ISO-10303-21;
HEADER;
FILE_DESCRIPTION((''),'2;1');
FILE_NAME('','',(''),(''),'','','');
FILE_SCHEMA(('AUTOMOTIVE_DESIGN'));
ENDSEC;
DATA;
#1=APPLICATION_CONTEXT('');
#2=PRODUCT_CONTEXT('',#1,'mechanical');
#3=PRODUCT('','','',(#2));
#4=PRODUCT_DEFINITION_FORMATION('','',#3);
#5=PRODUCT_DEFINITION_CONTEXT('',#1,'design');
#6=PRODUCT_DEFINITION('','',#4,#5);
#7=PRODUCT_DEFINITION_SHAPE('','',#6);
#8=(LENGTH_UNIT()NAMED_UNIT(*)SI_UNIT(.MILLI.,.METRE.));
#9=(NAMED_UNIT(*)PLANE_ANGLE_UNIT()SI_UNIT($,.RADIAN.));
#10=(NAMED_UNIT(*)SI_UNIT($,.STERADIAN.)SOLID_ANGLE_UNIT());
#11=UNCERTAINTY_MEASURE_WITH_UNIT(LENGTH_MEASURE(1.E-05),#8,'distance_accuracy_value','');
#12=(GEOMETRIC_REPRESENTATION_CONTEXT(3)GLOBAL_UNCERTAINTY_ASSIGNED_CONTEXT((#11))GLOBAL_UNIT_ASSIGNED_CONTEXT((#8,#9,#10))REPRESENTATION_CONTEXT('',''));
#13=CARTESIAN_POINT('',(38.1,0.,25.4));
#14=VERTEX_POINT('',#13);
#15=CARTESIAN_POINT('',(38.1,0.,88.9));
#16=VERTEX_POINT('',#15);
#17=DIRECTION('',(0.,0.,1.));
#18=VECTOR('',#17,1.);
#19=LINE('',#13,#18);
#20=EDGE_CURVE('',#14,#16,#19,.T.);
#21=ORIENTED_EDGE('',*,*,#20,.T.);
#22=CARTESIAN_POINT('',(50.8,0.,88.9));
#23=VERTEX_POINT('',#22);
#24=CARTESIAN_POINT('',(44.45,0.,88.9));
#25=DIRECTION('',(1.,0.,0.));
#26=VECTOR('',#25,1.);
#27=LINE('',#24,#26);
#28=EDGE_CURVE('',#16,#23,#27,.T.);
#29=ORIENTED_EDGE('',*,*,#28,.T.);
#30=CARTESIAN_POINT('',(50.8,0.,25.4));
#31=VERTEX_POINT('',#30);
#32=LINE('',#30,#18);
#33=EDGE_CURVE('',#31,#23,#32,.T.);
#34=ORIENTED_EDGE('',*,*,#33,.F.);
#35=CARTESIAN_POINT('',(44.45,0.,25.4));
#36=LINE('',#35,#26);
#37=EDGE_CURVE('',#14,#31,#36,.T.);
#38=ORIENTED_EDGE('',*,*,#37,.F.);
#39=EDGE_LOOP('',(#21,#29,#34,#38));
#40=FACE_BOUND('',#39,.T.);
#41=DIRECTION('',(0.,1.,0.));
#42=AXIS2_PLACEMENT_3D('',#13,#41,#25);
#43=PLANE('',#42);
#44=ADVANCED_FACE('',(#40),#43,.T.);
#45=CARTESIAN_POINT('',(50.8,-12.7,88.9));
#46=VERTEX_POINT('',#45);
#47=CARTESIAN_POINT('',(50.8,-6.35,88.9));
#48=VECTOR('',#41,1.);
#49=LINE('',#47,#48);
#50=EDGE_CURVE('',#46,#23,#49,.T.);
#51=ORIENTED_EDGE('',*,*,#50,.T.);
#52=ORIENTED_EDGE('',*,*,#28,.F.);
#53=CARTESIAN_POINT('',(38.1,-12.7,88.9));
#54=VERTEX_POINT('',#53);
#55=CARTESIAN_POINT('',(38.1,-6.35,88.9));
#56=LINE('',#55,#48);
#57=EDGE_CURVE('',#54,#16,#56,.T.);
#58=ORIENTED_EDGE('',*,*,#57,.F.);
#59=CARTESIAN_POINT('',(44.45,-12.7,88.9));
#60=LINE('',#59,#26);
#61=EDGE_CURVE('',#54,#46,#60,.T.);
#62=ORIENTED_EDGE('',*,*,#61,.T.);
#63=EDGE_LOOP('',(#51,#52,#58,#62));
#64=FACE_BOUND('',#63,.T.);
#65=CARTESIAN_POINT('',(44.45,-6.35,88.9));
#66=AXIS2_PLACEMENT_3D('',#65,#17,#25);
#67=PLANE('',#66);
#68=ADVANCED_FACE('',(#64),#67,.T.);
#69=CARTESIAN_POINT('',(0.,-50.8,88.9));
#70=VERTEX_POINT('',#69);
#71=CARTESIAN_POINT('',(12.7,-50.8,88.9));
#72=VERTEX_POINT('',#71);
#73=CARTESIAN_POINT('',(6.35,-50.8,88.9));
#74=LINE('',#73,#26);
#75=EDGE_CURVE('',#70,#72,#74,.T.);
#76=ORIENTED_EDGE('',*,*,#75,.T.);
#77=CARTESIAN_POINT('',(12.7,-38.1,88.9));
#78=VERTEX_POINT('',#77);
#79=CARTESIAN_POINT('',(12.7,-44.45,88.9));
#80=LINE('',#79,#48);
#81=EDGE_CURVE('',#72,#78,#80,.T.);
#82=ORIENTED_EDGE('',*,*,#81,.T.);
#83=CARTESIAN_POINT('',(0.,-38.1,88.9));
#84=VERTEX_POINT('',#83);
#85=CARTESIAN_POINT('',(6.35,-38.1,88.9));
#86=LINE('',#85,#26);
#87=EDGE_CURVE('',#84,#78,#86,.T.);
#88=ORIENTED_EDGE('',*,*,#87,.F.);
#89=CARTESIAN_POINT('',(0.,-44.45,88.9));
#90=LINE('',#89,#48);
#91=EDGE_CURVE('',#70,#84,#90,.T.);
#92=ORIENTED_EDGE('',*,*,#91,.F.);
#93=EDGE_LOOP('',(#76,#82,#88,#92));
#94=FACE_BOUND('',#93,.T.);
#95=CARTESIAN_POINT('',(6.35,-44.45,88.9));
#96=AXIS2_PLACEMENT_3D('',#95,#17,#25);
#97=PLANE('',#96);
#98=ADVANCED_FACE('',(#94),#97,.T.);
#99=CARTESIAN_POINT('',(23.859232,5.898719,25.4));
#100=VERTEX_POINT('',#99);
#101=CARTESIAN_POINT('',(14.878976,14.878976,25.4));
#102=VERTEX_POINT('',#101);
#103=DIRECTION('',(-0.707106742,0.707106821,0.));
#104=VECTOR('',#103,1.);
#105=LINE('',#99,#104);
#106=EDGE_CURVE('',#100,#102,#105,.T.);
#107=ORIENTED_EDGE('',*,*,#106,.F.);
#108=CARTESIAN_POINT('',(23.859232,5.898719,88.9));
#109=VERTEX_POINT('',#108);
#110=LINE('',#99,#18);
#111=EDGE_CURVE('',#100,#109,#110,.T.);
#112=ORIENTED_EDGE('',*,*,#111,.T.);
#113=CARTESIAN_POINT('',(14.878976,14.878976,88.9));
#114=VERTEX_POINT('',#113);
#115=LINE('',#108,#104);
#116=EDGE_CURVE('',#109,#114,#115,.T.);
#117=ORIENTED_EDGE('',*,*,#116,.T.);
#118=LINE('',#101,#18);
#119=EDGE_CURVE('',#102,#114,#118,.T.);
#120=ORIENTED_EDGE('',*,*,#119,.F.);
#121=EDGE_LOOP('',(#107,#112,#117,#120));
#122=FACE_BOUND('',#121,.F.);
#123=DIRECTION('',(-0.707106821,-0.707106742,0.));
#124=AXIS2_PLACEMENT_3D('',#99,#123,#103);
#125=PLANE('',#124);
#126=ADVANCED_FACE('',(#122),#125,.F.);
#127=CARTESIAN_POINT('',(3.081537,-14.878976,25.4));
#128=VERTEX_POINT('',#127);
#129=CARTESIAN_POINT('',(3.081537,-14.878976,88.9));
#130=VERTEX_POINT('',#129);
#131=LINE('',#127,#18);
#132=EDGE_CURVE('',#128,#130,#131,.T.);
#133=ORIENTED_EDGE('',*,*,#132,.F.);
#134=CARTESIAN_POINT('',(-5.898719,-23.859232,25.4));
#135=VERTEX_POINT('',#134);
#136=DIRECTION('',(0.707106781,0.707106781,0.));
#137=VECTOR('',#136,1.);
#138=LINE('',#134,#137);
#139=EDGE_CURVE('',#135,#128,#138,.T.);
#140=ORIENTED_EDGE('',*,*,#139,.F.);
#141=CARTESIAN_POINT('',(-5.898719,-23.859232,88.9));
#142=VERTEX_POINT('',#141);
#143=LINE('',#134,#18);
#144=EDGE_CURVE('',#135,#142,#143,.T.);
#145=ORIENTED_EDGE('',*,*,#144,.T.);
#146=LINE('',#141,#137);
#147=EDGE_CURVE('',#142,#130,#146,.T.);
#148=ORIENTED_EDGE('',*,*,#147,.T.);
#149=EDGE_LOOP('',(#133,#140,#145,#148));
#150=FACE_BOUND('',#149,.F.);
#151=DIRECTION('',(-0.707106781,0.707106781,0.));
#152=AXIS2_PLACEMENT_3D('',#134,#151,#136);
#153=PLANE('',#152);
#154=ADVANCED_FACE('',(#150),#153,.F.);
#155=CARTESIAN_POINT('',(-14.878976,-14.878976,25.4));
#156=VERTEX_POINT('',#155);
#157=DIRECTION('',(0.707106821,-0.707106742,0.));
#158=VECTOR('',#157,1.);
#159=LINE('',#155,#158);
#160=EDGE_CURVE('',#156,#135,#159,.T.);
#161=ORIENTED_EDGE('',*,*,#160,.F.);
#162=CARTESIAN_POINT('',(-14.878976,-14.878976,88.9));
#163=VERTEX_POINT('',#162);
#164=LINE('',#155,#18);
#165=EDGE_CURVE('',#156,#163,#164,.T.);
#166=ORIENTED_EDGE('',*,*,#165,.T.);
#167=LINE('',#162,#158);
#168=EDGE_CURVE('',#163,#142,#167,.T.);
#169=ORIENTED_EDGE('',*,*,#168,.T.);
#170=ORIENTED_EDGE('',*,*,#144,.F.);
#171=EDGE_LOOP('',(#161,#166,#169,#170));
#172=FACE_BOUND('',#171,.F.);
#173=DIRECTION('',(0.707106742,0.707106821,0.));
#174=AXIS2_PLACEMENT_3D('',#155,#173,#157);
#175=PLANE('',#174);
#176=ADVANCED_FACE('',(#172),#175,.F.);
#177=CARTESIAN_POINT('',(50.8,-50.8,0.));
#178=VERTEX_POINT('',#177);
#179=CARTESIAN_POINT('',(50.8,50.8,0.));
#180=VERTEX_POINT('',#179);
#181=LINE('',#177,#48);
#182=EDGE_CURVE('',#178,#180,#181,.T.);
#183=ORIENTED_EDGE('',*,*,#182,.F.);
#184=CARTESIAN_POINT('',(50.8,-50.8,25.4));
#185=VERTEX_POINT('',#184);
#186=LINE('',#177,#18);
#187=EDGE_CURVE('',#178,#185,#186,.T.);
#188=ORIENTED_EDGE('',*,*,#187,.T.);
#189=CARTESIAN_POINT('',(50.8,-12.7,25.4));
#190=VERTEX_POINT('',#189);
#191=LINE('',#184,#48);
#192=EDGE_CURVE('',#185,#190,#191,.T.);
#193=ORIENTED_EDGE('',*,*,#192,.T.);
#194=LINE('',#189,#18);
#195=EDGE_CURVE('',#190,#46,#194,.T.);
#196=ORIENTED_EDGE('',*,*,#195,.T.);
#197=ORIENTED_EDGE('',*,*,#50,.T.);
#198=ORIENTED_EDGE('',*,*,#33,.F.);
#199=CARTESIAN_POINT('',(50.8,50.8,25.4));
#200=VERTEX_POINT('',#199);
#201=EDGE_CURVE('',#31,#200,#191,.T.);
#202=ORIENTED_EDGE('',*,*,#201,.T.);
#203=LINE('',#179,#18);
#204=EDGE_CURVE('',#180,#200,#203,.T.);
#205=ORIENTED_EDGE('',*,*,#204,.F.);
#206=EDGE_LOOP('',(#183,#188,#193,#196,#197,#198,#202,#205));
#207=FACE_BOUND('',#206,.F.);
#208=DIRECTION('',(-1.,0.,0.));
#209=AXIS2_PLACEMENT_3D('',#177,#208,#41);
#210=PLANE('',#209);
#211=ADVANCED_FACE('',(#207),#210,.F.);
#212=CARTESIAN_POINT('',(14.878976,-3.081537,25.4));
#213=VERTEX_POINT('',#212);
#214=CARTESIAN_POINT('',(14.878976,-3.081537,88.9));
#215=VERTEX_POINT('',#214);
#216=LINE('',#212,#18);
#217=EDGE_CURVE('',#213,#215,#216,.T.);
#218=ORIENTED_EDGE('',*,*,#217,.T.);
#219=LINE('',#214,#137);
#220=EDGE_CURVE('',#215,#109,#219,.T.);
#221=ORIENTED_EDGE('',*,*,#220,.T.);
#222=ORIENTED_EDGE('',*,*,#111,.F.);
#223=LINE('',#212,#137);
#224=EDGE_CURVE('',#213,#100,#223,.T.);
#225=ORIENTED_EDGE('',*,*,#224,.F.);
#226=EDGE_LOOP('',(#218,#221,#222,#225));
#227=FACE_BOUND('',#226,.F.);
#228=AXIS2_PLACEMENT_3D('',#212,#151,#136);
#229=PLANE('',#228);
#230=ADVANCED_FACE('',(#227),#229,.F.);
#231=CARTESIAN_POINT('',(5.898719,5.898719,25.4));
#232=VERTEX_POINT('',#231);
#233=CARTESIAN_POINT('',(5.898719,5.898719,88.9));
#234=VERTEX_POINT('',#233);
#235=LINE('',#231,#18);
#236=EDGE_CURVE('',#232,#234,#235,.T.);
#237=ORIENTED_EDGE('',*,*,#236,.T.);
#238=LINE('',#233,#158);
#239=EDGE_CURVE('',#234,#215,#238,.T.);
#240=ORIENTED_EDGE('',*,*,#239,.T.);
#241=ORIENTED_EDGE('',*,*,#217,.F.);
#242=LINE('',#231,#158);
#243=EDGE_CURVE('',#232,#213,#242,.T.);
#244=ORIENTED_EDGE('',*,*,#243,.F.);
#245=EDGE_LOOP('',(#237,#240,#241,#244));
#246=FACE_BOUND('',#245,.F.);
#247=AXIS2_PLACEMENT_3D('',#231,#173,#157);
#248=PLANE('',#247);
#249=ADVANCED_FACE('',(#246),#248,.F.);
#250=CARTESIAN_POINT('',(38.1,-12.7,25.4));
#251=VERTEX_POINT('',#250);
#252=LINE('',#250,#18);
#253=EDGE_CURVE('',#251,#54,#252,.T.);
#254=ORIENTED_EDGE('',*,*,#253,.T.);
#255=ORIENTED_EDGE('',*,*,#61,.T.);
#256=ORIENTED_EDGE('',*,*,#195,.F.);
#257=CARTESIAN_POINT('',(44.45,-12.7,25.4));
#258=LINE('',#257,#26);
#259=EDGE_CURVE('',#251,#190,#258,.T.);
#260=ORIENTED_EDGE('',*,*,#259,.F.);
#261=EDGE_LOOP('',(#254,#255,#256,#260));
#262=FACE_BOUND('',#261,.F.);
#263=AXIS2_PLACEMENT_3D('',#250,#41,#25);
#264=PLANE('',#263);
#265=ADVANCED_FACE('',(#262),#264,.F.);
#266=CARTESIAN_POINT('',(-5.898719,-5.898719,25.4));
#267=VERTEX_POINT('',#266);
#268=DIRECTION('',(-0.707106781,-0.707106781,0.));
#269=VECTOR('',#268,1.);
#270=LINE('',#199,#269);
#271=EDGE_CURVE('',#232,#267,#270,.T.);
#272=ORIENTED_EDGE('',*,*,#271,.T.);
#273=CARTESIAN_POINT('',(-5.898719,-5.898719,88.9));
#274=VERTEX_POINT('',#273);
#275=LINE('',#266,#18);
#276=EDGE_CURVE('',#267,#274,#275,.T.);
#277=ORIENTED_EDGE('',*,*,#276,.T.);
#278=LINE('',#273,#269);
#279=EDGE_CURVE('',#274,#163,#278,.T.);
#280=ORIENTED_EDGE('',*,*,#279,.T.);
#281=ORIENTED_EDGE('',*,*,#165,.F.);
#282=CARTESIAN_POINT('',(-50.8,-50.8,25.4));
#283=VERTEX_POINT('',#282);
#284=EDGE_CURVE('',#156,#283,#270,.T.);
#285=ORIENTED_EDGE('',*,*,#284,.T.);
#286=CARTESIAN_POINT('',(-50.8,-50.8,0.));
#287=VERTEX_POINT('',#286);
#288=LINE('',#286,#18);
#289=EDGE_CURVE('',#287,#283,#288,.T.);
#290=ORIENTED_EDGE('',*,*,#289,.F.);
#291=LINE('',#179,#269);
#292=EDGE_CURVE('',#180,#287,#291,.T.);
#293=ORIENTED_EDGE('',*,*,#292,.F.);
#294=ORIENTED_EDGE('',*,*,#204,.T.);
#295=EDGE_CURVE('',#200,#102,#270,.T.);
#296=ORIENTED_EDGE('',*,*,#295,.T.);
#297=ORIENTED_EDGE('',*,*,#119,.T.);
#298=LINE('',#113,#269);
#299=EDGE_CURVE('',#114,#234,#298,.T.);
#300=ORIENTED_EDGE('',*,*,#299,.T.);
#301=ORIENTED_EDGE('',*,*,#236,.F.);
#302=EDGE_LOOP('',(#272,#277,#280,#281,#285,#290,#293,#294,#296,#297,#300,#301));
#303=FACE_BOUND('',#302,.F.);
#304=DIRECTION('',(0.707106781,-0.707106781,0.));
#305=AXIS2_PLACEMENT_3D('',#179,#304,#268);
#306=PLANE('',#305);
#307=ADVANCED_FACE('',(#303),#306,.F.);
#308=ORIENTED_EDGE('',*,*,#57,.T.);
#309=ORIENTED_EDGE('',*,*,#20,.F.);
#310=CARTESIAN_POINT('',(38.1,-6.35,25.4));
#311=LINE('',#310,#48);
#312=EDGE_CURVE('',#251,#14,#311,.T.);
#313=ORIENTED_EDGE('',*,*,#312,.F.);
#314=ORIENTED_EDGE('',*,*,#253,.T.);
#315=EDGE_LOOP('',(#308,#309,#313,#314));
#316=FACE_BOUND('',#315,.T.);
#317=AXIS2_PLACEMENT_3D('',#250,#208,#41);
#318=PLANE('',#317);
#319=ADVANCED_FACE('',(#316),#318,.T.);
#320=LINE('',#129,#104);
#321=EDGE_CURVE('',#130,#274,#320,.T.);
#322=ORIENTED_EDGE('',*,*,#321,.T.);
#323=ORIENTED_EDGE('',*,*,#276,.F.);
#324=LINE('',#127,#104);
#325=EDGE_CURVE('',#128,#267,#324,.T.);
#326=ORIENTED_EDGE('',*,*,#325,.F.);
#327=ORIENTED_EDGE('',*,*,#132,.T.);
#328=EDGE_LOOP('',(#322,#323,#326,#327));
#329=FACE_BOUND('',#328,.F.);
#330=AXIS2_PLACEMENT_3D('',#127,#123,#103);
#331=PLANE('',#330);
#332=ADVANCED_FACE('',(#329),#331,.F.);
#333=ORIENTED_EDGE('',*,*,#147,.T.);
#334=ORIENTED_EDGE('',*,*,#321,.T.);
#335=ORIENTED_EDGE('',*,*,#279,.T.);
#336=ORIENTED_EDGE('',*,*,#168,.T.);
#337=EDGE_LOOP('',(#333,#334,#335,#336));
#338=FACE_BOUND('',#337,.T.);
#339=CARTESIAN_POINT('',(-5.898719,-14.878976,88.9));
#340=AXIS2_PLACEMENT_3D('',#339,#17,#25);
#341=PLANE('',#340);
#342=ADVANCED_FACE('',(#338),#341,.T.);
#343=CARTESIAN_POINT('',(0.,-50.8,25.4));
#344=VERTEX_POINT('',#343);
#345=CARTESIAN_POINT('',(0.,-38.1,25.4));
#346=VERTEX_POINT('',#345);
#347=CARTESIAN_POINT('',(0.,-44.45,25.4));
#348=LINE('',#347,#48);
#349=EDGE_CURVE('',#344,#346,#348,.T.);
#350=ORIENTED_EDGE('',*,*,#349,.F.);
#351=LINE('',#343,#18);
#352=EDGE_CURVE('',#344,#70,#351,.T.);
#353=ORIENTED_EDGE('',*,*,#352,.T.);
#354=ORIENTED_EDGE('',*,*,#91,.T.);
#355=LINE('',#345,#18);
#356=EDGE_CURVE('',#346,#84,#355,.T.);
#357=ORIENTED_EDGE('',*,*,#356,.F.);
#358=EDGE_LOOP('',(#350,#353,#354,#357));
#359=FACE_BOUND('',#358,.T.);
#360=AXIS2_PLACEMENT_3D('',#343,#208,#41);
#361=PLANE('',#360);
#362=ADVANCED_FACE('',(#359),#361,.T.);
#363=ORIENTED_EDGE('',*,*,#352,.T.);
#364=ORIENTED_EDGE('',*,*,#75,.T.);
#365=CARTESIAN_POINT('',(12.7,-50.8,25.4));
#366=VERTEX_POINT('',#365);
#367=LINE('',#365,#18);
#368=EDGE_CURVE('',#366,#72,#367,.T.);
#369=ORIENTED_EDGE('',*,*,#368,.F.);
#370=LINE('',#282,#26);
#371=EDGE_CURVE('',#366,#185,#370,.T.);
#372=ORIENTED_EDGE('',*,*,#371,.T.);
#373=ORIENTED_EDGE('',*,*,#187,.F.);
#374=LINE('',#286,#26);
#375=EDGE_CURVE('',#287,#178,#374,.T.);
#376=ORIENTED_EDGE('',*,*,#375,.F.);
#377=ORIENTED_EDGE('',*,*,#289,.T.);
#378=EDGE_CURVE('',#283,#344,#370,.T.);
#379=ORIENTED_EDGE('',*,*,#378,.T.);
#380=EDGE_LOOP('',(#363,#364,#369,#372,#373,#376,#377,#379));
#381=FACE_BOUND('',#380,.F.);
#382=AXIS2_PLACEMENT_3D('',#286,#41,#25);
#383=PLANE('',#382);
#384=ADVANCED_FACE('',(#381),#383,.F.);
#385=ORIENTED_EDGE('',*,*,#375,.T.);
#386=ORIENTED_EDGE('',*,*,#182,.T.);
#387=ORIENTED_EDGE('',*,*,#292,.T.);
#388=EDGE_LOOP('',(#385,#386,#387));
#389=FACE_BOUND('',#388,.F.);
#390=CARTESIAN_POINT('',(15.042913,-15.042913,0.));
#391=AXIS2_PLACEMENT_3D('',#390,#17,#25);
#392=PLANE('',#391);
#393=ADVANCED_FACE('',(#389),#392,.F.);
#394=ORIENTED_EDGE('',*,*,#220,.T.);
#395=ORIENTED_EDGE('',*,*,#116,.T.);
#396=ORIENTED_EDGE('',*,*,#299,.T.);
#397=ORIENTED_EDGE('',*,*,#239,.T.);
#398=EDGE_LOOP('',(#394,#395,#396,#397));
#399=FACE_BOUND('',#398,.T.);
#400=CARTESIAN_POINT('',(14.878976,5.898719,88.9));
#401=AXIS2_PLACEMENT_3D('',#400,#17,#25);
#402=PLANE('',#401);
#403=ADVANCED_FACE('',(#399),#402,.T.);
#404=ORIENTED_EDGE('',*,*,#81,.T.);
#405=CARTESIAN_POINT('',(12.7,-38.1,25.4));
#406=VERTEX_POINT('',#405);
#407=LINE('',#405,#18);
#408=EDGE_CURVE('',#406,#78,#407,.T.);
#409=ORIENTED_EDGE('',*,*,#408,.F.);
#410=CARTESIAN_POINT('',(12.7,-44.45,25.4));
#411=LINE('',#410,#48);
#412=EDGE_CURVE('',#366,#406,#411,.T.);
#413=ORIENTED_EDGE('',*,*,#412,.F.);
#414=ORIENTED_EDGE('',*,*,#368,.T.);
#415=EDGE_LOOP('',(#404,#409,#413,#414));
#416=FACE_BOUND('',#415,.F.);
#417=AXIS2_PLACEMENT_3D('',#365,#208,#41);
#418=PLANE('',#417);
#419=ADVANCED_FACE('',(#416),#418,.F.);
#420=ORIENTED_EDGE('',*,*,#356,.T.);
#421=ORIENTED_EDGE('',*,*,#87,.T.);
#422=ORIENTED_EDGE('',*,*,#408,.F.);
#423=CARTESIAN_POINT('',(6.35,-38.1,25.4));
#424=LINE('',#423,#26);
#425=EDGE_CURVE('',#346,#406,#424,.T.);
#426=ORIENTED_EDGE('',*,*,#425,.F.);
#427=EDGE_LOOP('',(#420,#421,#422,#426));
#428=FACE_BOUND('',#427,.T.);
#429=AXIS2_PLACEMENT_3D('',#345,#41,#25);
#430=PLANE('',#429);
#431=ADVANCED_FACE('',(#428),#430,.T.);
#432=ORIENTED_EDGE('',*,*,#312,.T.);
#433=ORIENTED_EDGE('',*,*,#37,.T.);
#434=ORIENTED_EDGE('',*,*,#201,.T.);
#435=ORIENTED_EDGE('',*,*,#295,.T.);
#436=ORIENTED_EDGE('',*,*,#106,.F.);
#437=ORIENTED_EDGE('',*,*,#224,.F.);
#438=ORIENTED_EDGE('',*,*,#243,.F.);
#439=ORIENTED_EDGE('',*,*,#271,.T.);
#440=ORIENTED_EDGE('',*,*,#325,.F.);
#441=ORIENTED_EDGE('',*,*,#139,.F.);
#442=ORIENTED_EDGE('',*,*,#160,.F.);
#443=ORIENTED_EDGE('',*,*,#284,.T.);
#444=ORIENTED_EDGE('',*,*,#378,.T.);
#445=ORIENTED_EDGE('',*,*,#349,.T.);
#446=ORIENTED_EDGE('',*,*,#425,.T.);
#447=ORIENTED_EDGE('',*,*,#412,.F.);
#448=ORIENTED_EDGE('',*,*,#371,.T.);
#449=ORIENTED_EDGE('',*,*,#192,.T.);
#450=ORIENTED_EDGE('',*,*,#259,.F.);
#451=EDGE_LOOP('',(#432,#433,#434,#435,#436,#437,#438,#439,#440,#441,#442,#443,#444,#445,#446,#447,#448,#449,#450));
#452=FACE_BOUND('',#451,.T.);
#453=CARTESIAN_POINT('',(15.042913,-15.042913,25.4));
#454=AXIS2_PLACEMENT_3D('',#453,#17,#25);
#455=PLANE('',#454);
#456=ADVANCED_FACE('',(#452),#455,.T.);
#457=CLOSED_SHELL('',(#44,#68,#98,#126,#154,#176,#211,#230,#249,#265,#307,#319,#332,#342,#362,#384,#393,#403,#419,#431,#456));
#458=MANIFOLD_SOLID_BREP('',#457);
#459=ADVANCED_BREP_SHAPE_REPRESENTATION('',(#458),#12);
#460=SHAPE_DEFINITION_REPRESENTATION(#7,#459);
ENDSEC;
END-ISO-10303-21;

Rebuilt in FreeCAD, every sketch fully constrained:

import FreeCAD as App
import Part
import Sketcher

V = App.Vector
Q = App.Units.Quantity


def add_polygon(sketch, points):
    """Adds a closed chain of lines whose ends are joined by coincident constraints."""
    first, n = sketch.GeometryCount, len(points)
    for a, b in zip(points, points[1:] + points[:1]):
        sketch.addGeometry(Part.LineSegment(App.Vector(*a, 0), App.Vector(*b, 0)), False)
    for i in range(n):
        sketch.addConstraint(Sketcher.Constraint("Coincident", first + i, 2, first + (i + 1) % n, 1))

doc = App.newDocument("Part")
body = doc.addObject("PartDesign::Body", "Body")

# Sketch on XY plane
sketch1 = body.newObject("Sketcher::SketchObject", "Sketch")
sketch1.AttachmentSupport = (doc.getObject("XY_Plane"), [""])
sketch1.MapMode = "FlatFace"
add_polygon(sketch1, [(51, -51), (51, 51), (-51, -51)])  # lines 0-2
sketch1.addConstraint([
    Sketcher.Constraint("Vertical", 0),
    Sketcher.Constraint("Horizontal", 2),
    Sketcher.Constraint("Symmetric", 0, 2, 1, 2, -1, 1),
    Sketcher.Constraint("Equal", 2, 0),
    Sketcher.Constraint("DistanceX", 2, 1, 2, 2, Q("4 in")),
])
pad1 = body.newObject("PartDesign::Pad", "Pad")
pad1.Profile = sketch1
pad1.Length = Q("1 in")

# Sketch on XY plane
sketch2 = body.newObject("Sketcher::SketchObject", "Sketch001")
sketch2.AttachmentSupport = (doc.getObject("XY_Plane"), [""])
sketch2.MapMode = "FlatFace"
sketch2.AttachmentOffset = App.Placement(V(0, 0, 1 * 25.4), App.Rotation())
add_polygon(sketch2, [(38, 0), (38, -13), (51, -13), (51, 0)])  # lines 0-3
add_polygon(sketch2, [(15, 15), (6, 6), (15, -3), (24, 6)])  # lines 4-7
add_polygon(sketch2, [(-6, -6), (-15, -15), (-6, -24), (3, -15)])  # lines 8-11
add_polygon(sketch2, [(0, -38), (0, -51), (13, -51), (13, -38)])  # lines 12-15
sketch2.addConstraint([
    Sketcher.Constraint("Vertical", 0),
    Sketcher.Constraint("Horizontal", 1),
    Sketcher.Constraint("Vertical", 2),
    Sketcher.Constraint("Horizontal", 3),
    Sketcher.Constraint("Vertical", 12),
    Sketcher.Constraint("Horizontal", 13),
    Sketcher.Constraint("Vertical", 14),
    Sketcher.Constraint("Horizontal", 15),
    Sketcher.Constraint("Symmetric", 7, 2, 8, 2, -1, 1),
    Sketcher.Constraint("Symmetric", 4, 2, 11, 2, -1, 1),
    Sketcher.Constraint("PointOnObject", 2, 2, -1),
    Sketcher.Constraint("PointOnObject", 12, 2, -2),
    Sketcher.Constraint("Perpendicular", 4, 5),
    Sketcher.Constraint("Perpendicular", 5, 6),
    Sketcher.Constraint("Perpendicular", 6, 7),
    Sketcher.Constraint("Perpendicular", 8, 9),
    Sketcher.Constraint("Perpendicular", 9, 10),
    Sketcher.Constraint("Perpendicular", 10, 11),
    Sketcher.Constraint("Horizontal", 4, 2, 6, 2),
    Sketcher.Constraint("Horizontal", 8, 2, 10, 2),
    Sketcher.Constraint("Vertical", 5, 2, 7, 2),
    Sketcher.Constraint("Equal", 3, 13),
    Sketcher.Constraint("Equal", 15, 0),
    Sketcher.Constraint("Equal", 2, 12),
    Sketcher.Constraint("DistanceX", 1, 1, 1, 2, Q("0.5 in")),
    Sketcher.Constraint("DistanceX", -1, 1, 1, 2, Q("2 in")),
    Sketcher.Constraint("DistanceY", 12, 2, -1, 1, Q("2 in")),
    Sketcher.Constraint("Distance", 4, Q("0.5 in")),
    Sketcher.Constraint("DistanceX", -1, 1, 4, 2, Q("5.898719 mm")),
    Sketcher.Constraint("DistanceY", -1, 1, 4, 2, Q("5.898719 mm")),
])
pad2 = body.newObject("PartDesign::Pad", "Pad001")
pad2.Profile = sketch2
pad2.Length = Q("2.5 in")

doc.recompute()
